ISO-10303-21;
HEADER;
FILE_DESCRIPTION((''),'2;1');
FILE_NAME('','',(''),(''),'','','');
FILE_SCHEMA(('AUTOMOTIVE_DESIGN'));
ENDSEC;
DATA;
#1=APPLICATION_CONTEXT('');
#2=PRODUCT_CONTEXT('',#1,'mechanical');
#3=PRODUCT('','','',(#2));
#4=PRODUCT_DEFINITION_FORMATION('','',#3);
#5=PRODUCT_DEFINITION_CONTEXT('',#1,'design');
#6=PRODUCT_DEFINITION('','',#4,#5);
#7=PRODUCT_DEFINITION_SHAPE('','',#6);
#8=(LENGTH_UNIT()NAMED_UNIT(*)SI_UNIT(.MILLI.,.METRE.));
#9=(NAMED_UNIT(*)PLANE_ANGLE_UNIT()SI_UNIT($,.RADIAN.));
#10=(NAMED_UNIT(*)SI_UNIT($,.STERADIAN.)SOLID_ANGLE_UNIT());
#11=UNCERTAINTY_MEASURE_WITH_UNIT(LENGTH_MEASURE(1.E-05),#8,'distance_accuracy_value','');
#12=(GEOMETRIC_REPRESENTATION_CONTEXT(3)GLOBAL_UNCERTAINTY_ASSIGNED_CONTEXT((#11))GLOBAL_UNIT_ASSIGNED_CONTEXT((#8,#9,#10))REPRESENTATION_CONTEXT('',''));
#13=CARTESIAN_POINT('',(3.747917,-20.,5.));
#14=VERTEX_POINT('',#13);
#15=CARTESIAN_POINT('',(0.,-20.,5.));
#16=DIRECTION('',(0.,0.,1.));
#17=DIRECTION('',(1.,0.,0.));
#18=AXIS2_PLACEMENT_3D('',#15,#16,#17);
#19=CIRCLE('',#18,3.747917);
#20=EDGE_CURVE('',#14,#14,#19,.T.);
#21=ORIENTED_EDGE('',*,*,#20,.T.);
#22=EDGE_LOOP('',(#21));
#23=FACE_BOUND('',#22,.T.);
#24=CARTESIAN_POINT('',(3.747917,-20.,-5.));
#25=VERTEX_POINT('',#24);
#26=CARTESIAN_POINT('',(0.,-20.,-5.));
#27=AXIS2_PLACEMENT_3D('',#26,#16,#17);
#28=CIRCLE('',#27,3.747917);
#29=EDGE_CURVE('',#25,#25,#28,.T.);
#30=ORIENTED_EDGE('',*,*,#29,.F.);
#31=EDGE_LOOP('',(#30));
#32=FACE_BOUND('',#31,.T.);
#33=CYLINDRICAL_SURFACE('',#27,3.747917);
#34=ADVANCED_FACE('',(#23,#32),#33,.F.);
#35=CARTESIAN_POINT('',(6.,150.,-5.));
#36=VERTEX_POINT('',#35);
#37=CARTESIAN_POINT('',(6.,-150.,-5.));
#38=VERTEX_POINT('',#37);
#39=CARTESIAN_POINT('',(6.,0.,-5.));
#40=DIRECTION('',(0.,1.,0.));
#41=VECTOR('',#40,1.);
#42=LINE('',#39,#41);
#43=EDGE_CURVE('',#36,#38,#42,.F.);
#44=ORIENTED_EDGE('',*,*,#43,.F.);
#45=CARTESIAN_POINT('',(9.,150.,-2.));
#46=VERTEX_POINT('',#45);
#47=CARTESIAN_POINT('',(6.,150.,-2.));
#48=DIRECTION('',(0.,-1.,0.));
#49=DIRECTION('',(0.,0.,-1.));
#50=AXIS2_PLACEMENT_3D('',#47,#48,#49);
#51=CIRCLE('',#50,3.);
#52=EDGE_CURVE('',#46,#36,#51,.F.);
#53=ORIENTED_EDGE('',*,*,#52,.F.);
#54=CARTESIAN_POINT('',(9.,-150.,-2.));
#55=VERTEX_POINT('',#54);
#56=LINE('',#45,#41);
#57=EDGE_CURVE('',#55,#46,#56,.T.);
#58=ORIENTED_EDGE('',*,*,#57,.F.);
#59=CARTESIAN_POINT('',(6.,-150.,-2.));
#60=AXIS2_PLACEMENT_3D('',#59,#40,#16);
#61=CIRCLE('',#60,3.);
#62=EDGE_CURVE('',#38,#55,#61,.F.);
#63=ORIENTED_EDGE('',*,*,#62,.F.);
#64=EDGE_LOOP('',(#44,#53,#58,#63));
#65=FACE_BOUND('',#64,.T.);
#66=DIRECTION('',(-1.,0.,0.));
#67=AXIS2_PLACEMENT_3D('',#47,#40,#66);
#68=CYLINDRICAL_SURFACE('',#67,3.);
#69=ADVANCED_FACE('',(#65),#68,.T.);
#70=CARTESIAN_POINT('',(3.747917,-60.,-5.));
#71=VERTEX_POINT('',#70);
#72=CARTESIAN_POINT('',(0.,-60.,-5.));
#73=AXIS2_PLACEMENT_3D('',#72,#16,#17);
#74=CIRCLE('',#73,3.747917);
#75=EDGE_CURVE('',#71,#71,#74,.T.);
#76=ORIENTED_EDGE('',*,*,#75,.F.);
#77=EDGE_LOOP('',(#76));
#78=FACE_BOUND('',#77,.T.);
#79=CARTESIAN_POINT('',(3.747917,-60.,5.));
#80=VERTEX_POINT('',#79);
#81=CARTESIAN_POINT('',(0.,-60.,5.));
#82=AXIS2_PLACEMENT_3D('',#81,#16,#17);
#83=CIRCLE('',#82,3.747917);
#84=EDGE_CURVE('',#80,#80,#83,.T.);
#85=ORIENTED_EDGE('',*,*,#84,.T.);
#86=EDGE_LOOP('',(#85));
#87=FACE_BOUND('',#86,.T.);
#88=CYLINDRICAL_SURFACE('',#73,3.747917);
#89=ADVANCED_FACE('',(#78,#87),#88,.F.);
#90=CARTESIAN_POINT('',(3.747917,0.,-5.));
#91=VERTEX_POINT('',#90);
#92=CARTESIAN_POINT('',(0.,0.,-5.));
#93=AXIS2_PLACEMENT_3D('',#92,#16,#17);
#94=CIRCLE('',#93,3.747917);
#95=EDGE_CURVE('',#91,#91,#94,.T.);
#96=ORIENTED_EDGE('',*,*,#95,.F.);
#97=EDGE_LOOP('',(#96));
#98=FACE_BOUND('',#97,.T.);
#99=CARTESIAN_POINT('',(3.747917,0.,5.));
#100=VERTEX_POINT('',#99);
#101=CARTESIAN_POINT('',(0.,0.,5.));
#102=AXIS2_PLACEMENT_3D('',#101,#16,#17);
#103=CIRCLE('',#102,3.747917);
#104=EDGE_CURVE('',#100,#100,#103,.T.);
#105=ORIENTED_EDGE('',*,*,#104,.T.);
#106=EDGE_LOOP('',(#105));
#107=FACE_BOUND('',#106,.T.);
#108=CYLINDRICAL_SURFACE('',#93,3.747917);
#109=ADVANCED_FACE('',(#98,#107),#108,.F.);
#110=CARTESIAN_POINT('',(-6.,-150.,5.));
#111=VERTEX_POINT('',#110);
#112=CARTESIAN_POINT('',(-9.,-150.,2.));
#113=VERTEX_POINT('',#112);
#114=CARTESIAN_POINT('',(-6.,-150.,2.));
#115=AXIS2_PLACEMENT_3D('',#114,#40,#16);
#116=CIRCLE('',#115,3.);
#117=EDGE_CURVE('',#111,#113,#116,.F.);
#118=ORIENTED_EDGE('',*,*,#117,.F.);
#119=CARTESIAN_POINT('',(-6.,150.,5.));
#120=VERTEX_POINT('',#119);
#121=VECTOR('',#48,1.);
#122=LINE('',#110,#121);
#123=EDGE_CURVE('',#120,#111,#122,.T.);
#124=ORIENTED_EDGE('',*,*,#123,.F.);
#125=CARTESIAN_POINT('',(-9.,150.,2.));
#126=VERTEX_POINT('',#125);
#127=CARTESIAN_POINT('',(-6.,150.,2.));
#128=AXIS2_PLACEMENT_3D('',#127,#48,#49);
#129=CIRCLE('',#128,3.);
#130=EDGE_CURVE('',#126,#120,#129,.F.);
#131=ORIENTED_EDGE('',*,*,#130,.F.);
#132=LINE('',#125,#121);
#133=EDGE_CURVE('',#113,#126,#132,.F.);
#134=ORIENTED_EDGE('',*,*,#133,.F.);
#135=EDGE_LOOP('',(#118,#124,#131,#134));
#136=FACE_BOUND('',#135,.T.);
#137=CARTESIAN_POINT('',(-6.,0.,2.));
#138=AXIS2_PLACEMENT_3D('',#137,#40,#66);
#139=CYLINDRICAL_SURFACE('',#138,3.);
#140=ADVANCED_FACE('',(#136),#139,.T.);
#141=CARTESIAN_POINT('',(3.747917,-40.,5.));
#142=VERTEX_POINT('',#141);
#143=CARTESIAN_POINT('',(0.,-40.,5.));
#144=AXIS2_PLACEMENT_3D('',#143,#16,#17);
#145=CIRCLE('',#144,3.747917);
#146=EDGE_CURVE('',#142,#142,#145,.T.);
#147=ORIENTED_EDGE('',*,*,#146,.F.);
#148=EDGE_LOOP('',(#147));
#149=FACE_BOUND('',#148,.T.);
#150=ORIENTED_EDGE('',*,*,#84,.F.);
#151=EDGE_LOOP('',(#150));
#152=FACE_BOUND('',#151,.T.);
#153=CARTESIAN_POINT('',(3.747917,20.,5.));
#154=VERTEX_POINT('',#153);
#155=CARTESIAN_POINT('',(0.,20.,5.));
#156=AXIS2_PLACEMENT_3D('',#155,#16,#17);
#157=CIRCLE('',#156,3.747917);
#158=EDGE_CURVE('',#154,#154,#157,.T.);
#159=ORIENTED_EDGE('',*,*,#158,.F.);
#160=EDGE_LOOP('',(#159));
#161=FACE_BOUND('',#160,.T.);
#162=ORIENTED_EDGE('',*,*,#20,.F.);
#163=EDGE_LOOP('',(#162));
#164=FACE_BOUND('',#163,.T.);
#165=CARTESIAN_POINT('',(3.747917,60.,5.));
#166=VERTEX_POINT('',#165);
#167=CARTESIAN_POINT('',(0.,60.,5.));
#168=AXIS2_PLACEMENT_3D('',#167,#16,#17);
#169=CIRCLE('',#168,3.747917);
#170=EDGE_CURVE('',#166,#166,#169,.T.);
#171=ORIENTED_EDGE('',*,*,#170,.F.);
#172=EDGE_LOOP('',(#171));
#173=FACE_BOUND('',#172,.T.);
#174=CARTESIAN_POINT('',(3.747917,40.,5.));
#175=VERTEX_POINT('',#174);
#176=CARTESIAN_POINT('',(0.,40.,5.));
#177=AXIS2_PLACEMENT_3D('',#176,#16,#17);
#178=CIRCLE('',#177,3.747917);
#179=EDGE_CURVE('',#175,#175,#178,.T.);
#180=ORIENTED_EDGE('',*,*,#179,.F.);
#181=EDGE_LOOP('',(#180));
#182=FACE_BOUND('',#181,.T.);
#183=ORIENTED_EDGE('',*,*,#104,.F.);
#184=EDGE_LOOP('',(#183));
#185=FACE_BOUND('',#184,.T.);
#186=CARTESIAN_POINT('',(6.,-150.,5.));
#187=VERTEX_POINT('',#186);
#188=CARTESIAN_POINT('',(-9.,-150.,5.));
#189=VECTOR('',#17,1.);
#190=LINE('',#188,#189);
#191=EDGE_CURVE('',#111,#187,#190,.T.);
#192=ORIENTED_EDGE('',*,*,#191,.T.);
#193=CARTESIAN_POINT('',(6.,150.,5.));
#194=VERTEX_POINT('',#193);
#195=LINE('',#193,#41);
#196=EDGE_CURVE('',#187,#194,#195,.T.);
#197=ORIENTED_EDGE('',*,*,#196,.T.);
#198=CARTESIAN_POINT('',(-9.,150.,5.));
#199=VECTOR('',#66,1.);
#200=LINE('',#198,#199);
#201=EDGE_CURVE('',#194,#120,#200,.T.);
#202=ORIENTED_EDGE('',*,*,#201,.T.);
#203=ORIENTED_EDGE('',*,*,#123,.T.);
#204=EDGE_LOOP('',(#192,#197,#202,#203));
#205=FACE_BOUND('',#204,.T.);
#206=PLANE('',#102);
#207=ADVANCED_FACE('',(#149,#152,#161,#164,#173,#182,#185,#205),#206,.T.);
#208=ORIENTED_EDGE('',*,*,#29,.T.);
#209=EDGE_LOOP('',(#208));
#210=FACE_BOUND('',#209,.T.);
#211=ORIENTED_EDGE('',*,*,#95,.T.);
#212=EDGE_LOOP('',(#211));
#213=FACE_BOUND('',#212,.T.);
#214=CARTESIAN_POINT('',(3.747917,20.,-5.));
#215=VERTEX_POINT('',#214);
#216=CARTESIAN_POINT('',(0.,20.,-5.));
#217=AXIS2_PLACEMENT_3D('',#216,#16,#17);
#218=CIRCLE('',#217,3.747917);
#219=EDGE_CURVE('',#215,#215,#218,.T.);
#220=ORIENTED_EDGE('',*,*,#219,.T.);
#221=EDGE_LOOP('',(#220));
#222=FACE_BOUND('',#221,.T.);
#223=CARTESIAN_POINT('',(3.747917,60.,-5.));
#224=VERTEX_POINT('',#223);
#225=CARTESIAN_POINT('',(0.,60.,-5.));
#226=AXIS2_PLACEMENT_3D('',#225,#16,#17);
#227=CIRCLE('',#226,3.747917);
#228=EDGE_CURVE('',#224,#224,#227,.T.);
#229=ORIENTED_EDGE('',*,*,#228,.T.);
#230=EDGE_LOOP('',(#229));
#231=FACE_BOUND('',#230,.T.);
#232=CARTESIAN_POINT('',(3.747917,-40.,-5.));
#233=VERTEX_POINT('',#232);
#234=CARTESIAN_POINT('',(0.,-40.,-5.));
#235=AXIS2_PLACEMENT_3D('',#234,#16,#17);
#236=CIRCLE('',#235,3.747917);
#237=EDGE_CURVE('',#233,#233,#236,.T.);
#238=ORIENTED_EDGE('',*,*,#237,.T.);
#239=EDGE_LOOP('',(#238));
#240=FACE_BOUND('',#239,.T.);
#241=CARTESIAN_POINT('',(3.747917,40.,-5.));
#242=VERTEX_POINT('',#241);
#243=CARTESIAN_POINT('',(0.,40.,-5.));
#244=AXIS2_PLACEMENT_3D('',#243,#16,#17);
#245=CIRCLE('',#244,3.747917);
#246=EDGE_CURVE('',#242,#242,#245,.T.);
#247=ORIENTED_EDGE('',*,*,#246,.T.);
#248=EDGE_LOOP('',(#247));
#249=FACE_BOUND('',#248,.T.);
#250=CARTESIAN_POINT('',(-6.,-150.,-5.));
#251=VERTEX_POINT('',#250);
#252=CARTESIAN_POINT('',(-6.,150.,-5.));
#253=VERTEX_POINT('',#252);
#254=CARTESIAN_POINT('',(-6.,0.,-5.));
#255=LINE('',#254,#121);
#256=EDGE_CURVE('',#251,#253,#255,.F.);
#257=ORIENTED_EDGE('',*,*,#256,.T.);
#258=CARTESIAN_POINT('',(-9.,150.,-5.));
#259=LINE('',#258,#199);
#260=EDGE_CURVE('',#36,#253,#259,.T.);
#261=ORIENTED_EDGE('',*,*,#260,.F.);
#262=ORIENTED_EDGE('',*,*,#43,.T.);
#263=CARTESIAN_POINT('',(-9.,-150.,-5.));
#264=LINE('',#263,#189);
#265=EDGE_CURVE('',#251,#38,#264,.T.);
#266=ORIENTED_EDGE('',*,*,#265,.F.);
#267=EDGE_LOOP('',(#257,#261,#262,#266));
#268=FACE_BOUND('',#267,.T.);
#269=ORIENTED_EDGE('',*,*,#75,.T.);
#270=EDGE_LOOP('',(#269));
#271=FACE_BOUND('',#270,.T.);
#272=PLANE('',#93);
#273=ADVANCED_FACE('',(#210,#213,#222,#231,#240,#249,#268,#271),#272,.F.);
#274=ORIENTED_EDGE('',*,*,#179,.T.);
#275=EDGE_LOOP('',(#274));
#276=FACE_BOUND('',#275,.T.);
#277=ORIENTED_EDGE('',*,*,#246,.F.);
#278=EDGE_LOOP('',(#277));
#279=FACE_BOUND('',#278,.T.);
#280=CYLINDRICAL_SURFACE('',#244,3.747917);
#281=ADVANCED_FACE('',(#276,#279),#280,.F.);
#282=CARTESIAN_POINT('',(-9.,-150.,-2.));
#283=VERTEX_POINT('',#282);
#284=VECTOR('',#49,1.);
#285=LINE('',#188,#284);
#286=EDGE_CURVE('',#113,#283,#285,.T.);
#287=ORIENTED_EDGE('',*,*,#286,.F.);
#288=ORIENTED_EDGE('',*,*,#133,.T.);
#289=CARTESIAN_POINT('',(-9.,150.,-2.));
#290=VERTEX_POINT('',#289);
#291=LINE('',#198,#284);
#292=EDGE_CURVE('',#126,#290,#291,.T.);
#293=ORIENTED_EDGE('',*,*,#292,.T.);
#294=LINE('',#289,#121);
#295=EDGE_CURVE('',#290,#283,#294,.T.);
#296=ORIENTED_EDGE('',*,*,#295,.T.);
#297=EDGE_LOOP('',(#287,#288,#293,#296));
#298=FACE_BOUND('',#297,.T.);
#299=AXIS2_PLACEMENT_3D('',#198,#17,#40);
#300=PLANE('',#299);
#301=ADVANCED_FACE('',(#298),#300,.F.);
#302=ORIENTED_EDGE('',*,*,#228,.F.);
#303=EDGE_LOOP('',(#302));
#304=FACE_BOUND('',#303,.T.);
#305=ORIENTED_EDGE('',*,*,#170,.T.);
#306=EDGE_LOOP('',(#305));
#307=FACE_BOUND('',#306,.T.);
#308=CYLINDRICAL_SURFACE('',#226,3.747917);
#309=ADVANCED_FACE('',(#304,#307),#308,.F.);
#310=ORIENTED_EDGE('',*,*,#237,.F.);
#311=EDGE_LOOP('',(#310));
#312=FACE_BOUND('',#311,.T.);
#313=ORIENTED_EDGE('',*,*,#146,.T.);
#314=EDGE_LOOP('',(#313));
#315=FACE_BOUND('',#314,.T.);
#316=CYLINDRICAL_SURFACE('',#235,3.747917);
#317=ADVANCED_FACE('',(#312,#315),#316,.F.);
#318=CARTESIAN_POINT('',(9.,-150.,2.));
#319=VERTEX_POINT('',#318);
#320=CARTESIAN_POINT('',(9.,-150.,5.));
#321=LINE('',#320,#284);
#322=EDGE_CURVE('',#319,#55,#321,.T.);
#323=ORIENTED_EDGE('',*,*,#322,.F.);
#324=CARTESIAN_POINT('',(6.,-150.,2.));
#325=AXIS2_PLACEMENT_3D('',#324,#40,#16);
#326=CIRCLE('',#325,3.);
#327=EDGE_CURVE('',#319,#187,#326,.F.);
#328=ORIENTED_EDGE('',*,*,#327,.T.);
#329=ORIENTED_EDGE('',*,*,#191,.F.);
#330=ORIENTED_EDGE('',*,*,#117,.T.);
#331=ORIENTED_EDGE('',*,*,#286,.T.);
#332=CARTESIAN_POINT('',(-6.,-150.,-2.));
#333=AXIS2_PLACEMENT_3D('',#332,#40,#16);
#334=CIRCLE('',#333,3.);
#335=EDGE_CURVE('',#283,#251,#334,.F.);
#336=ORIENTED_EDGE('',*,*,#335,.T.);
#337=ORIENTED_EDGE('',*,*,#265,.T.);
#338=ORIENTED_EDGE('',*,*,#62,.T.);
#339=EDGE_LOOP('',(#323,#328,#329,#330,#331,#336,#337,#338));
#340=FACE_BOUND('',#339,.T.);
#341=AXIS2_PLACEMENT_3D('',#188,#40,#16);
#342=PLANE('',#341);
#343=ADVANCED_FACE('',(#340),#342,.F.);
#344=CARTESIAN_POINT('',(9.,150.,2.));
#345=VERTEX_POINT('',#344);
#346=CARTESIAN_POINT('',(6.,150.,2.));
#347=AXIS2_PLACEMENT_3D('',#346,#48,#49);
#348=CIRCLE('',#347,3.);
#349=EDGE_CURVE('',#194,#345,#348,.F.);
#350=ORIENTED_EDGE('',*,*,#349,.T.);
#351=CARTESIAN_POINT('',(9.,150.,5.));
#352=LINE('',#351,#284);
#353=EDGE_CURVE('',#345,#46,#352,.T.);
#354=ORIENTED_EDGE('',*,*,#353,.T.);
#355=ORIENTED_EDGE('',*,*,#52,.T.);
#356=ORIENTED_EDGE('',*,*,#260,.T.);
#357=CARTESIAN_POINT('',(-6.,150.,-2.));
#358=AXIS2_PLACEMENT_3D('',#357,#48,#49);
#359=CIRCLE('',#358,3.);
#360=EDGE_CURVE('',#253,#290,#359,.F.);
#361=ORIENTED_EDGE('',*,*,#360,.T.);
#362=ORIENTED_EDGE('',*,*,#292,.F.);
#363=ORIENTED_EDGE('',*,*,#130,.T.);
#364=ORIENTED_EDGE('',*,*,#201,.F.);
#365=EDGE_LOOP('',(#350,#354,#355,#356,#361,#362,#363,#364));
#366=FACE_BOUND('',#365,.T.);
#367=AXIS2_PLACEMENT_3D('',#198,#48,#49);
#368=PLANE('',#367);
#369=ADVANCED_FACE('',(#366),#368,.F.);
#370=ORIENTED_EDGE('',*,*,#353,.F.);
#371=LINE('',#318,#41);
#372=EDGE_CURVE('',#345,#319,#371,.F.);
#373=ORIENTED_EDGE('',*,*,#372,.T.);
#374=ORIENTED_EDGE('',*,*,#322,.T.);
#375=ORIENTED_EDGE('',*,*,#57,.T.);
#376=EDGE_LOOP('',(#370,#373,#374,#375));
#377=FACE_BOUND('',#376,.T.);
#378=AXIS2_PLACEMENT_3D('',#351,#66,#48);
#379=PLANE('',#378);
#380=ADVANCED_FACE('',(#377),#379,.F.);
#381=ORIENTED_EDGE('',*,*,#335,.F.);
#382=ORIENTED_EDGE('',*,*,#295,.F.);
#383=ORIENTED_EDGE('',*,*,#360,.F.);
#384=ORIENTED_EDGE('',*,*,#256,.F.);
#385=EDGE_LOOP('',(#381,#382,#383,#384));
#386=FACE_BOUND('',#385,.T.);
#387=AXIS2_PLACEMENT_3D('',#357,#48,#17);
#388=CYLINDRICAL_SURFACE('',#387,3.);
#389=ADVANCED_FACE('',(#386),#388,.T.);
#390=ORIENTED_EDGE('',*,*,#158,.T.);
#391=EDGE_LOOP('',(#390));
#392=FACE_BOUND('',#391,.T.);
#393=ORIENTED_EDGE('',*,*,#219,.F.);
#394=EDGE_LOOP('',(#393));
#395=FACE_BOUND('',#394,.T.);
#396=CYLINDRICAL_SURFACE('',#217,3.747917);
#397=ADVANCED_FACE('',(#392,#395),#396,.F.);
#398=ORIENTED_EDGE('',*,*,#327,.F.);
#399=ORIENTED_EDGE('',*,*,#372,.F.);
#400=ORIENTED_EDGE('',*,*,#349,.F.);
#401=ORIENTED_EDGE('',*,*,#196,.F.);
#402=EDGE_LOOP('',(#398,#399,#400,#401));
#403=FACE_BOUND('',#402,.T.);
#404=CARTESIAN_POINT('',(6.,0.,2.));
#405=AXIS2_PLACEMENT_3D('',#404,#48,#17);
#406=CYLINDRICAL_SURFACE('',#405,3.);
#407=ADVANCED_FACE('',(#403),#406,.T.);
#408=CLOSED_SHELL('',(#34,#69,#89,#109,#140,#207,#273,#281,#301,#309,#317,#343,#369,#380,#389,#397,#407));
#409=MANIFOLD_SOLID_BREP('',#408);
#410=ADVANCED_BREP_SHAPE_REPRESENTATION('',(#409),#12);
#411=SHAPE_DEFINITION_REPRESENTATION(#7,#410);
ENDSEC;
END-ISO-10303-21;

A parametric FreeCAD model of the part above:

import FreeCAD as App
import Part
import Sketcher

V = App.Vector
Q = App.Units.Quantity


def edges_at(feature, points):
    """Names of the edges that pass closest to the given points."""
    edges = feature.Shape.Edges
    near = lambda p: min(range(len(edges)), key=lambda i: edges[i].distToShape(Part.Vertex(*p))[0])
    return sorted({f"Edge{near(p) + 1}" for p in points})


def add_polygon(sketch, points):
    """Adds a closed chain of lines whose ends are joined by coincident constraints."""
    first, n = sketch.GeometryCount, len(points)
    for a, b in zip(points, points[1:] + points[:1]):
        sketch.addGeometry(Part.LineSegment(App.Vector(*a, 0), App.Vector(*b, 0)), False)
    for i in range(n):
        sketch.addConstraint(Sketcher.Constraint("Coincident", first + i, 2, first + (i + 1) % n, 1))

doc = App.newDocument("Part")
body = doc.addObject("PartDesign::Body", "Body")

# Sketch on XY plane
sketch1 = body.newObject("Sketcher::SketchObject", "Sketch")
sketch1.AttachmentSupport = (doc.getObject("XY_Plane"), [""])
sketch1.MapMode = "FlatFace"
add_polygon(sketch1, [(-9, 150), (-9, -150), (9, -150), (9, 150)])  # lines 0-3
sketch1.addConstraint(Sketcher.Constraint("Vertical", 0))
sketch1.addConstraint(Sketcher.Constraint("Horizontal", 1))
sketch1.addConstraint(Sketcher.Constraint("Vertical", 2))
sketch1.addConstraint(Sketcher.Constraint("Horizontal", 3))
sketch1.addConstraint(Sketcher.Constraint("Symmetric", 0, 2, 2, 2, -1, 1))
sketch1.addConstraint(Sketcher.Constraint("DistanceX", 1, 1, 1, 2, Q("18 mm")))
sketch1.addConstraint(Sketcher.Constraint("DistanceY", 0, 2, 0, 1, Q("300 mm")))
pad1 = body.newObject("PartDesign::Pad", "Pad")
pad1.Profile = sketch1
pad1.Length = 10
pad1.Midplane = True
doc.recompute()

fillet = body.newObject("PartDesign::Fillet", "Fillet")
fillet.Base = (pad1, edges_at(pad1, [
    (-9, 0, 5),
    (9, 0, 5),
    (-9, 0, -5),
    (9, 0, -5),
]))
fillet.Radius = 3

# Sketch on XY plane
sketch2 = body.newObject("Sketcher::SketchObject", "Sketch001")
sketch2.AttachmentSupport = (doc.getObject("XY_Plane"), [""])
sketch2.MapMode = "FlatFace"
sketch2.AttachmentOffset = App.Placement(V(0, 0, 5), App.Rotation())
sketch2.addGeometry(Part.Circle(V(0, 0, 0), V(0, 0, 1), 3.7), False)
sketch2.addGeometry(Part.Circle(V(0, 20, 0), V(0, 0, 1), 3.7), False)
sketch2.addGeometry(Part.Circle(V(0, 40, 0), V(0, 0, 1), 3.7), False)
sketch2.addGeometry(Part.Circle(V(0, 60, 0), V(0, 0, 1), 3.7), False)
sketch2.addGeometry(Part.Circle(V(0, -20, 0), V(0, 0, 1), 3.7), False)
sketch2.addGeometry(Part.Circle(V(0, -60, 0), V(0, 0, 1), 3.7), False)
sketch2.addGeometry(Part.Circle(V(0, -40, 0), V(0, 0, 1), 3.7), False)
sketch2.addConstraint(Sketcher.Constraint("Coincident", 0, 3, -1, 1))
sketch2.addConstraint(Sketcher.Constraint("Equal", 0, 1))
sketch2.addConstraint(Sketcher.Constraint("Equal", 1, 2))
sketch2.addConstraint(Sketcher.Constraint("Equal", 2, 3))
sketch2.addConstraint(Sketcher.Constraint("Equal", 3, 4))
sketch2.addConstraint(Sketcher.Constraint("Equal", 4, 5))
sketch2.addConstraint(Sketcher.Constraint("Equal", 5, 6))
sketch2.addConstraint(Sketcher.Constraint("Symmetric", 1, 3, 4, 3, -1, 1))
sketch2.addConstraint(Sketcher.Constraint("Symmetric", 3, 3, 5, 3, -1, 1))
sketch2.addConstraint(Sketcher.Constraint("Symmetric", 2, 3, 6, 3, -1, 1))
sketch2.addConstraint(Sketcher.Constraint("PointOnObject", 1, 3, -2))
sketch2.addConstraint(Sketcher.Constraint("PointOnObject", 2, 3, -2))
sketch2.addConstraint(Sketcher.Constraint("PointOnObject", 3, 3, -2))
sketch2.addConstraint(Sketcher.Constraint("DistanceY", -1, 1, 1, 3, Q("20 mm")))
sketch2.addConstraint(Sketcher.Constraint("DistanceY", -1, 1, 2, 3, Q("40 mm")))
sketch2.addConstraint(Sketcher.Constraint("DistanceY", -1, 1, 3, 3, Q("60 mm")))
sketch2.addConstraint(Sketcher.Constraint("Diameter", 0, Q("7.495835 mm")))
pocket1 = body.newObject("PartDesign::Pocket", "Pocket")
pocket1.Profile = sketch2
pocket1.Length = 10

doc.recompute()
